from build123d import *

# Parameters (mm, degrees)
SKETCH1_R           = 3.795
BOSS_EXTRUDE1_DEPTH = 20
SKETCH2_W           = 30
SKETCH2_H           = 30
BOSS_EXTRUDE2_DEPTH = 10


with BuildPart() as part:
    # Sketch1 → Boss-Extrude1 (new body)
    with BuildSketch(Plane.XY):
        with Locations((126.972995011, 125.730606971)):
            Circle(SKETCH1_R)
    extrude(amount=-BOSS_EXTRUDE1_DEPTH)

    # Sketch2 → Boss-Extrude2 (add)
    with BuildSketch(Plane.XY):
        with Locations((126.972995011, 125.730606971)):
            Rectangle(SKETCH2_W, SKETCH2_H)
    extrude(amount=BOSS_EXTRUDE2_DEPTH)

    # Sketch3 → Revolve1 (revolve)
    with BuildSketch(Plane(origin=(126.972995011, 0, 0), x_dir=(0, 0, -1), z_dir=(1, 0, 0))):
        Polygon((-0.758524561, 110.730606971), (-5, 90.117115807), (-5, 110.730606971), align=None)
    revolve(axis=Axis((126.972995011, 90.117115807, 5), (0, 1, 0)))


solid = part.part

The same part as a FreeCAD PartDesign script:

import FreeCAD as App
import Part
import Sketcher
from FreeCAD import Vector

doc = App.newDocument("Part")
params = doc.addObject("Spreadsheet::Sheet", "Params")
for row, (alias, value) in enumerate([
    ("sketch1_diameter", "7.59 mm"),
    ("pad1_length", "20 mm"),
    ("sketch2_width", "30 mm"),
    ("pad2_length", "10 mm"),
    ("revolution_angle", "360 deg"),
], start=1):
    params.set(f"A{row}", alias)
    params.set(f"B{row}", "=" + value)
    params.setAlias(f"B{row}", alias)

body = doc.addObject("PartDesign::Body", "Body")

sketch1 = body.newObject("Sketcher::SketchObject", "Sketch")
sketch1.AttachmentSupport = (doc.getObject("XY_Plane"), [""])
sketch1.MapMode = "FlatFace"
sketch1.addGeometry(Part.Circle(Vector(126.972995, 125.730607, 0), Vector(0, 0, 1), 3.795), False)
sketch1.addConstraint([
    Sketcher.Constraint("Diameter", 0, 7.59),
    Sketcher.Constraint("DistanceX", -1, 1, 0, 3, 126.972995),
    Sketcher.Constraint("DistanceY", -1, 1, 0, 3, 125.730607),
])
sketch1.setExpression("Constraints[0]", "Params.sketch1_diameter")
pad1 = body.newObject("PartDesign::Pad", "Pad")
pad1.Profile = sketch1
pad1.setExpression("Length", "Params.pad1_length")
pad1.Reversed = True

sketch2 = body.newObject("Sketcher::SketchObject", "Sketch001")
sketch2.AttachmentSupport = (doc.getObject("XY_Plane"), [""])
sketch2.MapMode = "FlatFace"
sketch2.addGeometry([
    Part.LineSegment(Vector(111.972995, 140.730607, 0), Vector(111.972995, 110.730607, 0)),
    Part.LineSegment(Vector(111.972995, 110.730607, 0), Vector(141.972995, 110.730607, 0)),
    Part.LineSegment(Vector(141.972995, 110.730607, 0), Vector(141.972995, 140.730607, 0)),
    Part.LineSegment(Vector(141.972995, 140.730607, 0), Vector(111.972995, 140.730607, 0)),
], False)
sketch2.addConstraint([
    Sketcher.Constraint("Coincident", 0, 2, 1, 1),
    Sketcher.Constraint("Coincident", 1, 2, 2, 1),
    Sketcher.Constraint("Coincident", 2, 2, 3, 1),
    Sketcher.Constraint("Coincident", 3, 2, 0, 1),
    Sketcher.Constraint("Vertical", 0),
    Sketcher.Constraint("Horizontal", 1),
    Sketcher.Constraint("Vertical", 2),
    Sketcher.Constraint("Horizontal", 3),
    Sketcher.Constraint("Equal", 3, 0),
    Sketcher.Constraint("DistanceX", 1, 1, 1, 2, 30.0),
    Sketcher.Constraint("DistanceX", -1, 1, 0, 2, 111.972995),
    Sketcher.Constraint("DistanceY", -1, 1, 0, 2, 110.730607),
])
sketch2.setExpression("Constraints[9]", "Params.sketch2_width")
pad2 = body.newObject("PartDesign::Pad", "Pad001")
pad2.Profile = sketch2
pad2.setExpression("Length", "Params.pad2_length")

sketch3 = body.newObject("Sketcher::SketchObject", "Sketch002")
sketch3.AttachmentSupport = (doc.getObject("YZ_Plane"), [""])
sketch3.MapMode = "FlatFace"
sketch3.AttachmentOffset = App.Placement(Vector(0, 0, 126.972995), App.Rotation())
sketch3.addGeometry([
    Part.LineSegment(Vector(90.117116, 5, 0), Vector(110.730607, 0.758525, 0)),
    Part.LineSegment(Vector(110.730607, 0.758525, 0), Vector(110.730607, 5, 0)),
    Part.LineSegment(Vector(110.730607, 5, 0), Vector(90.117116, 5, 0)),
], False)
sketch3.addGeometry(Part.LineSegment(Vector(90.117116, 5, 0), Vector(110.730607, 5, 0)), True)
sketch3.addConstraint([
    Sketcher.Constraint("Coincident", 0, 2, 1, 1),
    Sketcher.Constraint("Coincident", 1, 2, 2, 1),
    Sketcher.Constraint("Coincident", 2, 2, 0, 1),
    Sketcher.Constraint("Vertical", 1),
    Sketcher.Constraint("Horizontal", 2),
    Sketcher.Constraint("Horizontal", 3),
    Sketcher.Constraint("Coincident", 3, 1, 2, 2),
    Sketcher.Constraint("Vertical", 0, 2, 3, 2),
    Sketcher.Constraint("DistanceY", -1, 1, 1, 2, 5.0),
    Sketcher.Constraint("DistanceX", 2, 2, 2, 1, 20.613491),
    Sketcher.Constraint("DistanceY", 1, 1, 1, 2, 4.241475),
    Sketcher.Constraint("DistanceX", -1, 1, 0, 2, 110.730607),
])
revolution = body.newObject("PartDesign::Revolution", "Revolution")
revolution.Profile = sketch3
revolution.ReferenceAxis = (sketch3, ["Axis0"])
revolution.setExpression("Angle", "Params.revolution_angle")

doc.recompute()
